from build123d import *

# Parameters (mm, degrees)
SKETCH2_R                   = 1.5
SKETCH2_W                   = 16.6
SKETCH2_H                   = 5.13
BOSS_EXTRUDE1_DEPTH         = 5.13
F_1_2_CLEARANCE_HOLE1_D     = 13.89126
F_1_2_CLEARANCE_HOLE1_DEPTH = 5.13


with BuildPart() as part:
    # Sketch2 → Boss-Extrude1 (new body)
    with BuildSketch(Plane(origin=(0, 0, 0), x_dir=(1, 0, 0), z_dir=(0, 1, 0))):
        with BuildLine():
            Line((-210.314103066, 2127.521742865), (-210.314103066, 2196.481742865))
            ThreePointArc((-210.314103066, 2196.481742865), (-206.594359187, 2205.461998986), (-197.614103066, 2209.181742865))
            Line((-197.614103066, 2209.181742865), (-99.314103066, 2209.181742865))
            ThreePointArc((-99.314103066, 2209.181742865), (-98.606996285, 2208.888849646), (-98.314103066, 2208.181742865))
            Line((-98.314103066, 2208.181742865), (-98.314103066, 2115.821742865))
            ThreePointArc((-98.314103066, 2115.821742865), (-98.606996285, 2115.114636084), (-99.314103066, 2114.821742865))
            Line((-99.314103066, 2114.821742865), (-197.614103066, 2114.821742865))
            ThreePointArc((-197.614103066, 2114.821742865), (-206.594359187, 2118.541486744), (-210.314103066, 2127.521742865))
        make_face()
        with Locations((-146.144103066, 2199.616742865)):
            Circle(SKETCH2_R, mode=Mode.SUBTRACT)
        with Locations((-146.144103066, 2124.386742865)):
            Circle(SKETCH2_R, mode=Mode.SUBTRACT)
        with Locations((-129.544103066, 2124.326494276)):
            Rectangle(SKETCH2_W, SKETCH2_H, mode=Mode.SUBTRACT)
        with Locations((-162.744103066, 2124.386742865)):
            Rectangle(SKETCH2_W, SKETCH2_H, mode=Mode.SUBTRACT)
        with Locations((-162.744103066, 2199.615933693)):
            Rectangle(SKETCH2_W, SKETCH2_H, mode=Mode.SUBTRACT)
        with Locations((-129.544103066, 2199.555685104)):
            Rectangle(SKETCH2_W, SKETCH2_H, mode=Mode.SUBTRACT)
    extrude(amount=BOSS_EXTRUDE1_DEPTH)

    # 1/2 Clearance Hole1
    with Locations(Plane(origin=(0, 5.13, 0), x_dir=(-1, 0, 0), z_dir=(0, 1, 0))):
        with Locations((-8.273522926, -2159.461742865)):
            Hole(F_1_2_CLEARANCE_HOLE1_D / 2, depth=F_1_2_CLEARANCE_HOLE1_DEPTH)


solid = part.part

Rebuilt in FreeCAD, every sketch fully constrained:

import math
import FreeCAD as App
import Part
import Sketcher
from FreeCAD import Vector
Q = App.Units.Quantity


def add_polygon(sketch, points):
    """Adds a closed chain of lines whose ends are joined by coincident constraints."""
    first, n = sketch.GeometryCount, len(points)
    for a, b in zip(points, points[1:] + points[:1]):
        sketch.addGeometry(Part.LineSegment(App.Vector(*a, 0), App.Vector(*b, 0)), False)
    for i in range(n):
        sketch.addConstraint(Sketcher.Constraint("Coincident", first + i, 2, first + (i + 1) % n, 1))

doc = App.newDocument("Part")
params = doc.addObject("Spreadsheet::Sheet", "Params")
for row, (alias, value) in enumerate([
    ("sketch1_diameter", "3 mm"),
    ("sketch1_radius", "1 mm"),
    ("sketch1_radius2", "12.7 mm"),
    ("sketch1_width", "98.3 mm"),
    ("sketch1_width2", "16.6 mm"),
    ("pad1_length", "5.13 mm"),
    ("hole_diameter", "13.89126 mm"),
    ("hole_depth", "5.13 mm"),
], start=1):
    params.set(f"A{row}", alias)
    params.set(f"B{row}", "=" + value)
    params.setAlias(f"B{row}", alias)

body = doc.addObject("PartDesign::Body", "Body")

# Sketch on XZ plane
sketch1 = doc.addObject("Sketcher::SketchObject", "Sketch")
body.addObject(sketch1)
sketch1.AttachmentSupport = (doc.XZ_Plane, [""])
sketch1.MapMode = "FlatFace"
sketch1.addGeometry(Part.LineSegment(Vector(-210.3, -2196.5, 0), Vector(-210.3, -2127.5, 0)), False)  # 0
sketch1.addGeometry(Part.ArcOfCircle(Part.Circle(Vector(-197.6, -2127.5, 0), Vector(0, 0, 1), 12.7), math.radians(90), math.radians(180)), False)  # 1
sketch1.addGeometry(Part.LineSegment(Vector(-197.6, -2114.8, 0), Vector(-99.3, -2114.8, 0)), False)  # 2
sketch1.addGeometry(Part.ArcOfCircle(Part.Circle(Vector(-99.3, -2115.8, 0), Vector(0, 0, 1), 1), math.radians(0), math.radians(90)), False)  # 3
sketch1.addGeometry(Part.LineSegment(Vector(-98.3, -2115.8, 0), Vector(-98.3, -2208.2, 0)), False)  # 4
sketch1.addGeometry(Part.ArcOfCircle(Part.Circle(Vector(-99.3, -2208.2, 0), Vector(0, 0, 1), 1), math.radians(-90), math.radians(0)), False)  # 5
sketch1.addGeometry(Part.LineSegment(Vector(-99.3, -2209.2, 0), Vector(-197.6, -2209.2, 0)), False)  # 6
sketch1.addGeometry(Part.ArcOfCircle(Part.Circle(Vector(-197.6, -2196.5, 0), Vector(0, 0, 1), 12.7), math.radians(180), math.radians(270)), False)  # 7
add_polygon(sketch1, [(-137.8, -2121.8), (-137.8, -2126.9), (-121.2, -2126.9), (-121.2, -2121.8)])  # lines 8-11
sketch1.addGeometry(Part.Circle(Vector(-146.1, -2124.4, 0), Vector(0, 0, 1), 1.5), False)  # 12
add_polygon(sketch1, [(-171, -2121.8), (-171, -2127), (-154.4, -2127), (-154.4, -2121.8)])  # lines 13-16
add_polygon(sketch1, [(-137.8, -2197), (-137.8, -2202.1), (-121.2, -2202.1), (-121.2, -2197)])  # lines 17-20
sketch1.addGeometry(Part.Circle(Vector(-146.1, -2199.6, 0), Vector(0, 0, 1), 1.5), False)  # 21
add_polygon(sketch1, [(-171, -2197.1), (-171, -2202.2), (-154.4, -2202.2), (-154.4, -2197.1)])  # lines 22-25
sketch1.addConstraint([
    Sketcher.Constraint("Tangent", 0, 2, 1, 2),
    Sketcher.Constraint("Tangent", 1, 1, 2, 1),
    Sketcher.Constraint("Tangent", 2, 2, 3, 2),
    Sketcher.Constraint("Tangent", 3, 1, 4, 1),
    Sketcher.Constraint("Tangent", 4, 2, 5, 2),
    Sketcher.Constraint("Tangent", 5, 1, 6, 1),
    Sketcher.Constraint("Tangent", 6, 2, 7, 2),
    Sketcher.Constraint("Tangent", 7, 1, 0, 1),
    Sketcher.Constraint("Vertical", 0),
    Sketcher.Constraint("Horizontal", 2),
    Sketcher.Constraint("Vertical", 4),
    Sketcher.Constraint("Horizontal", 6),
    Sketcher.Constraint("Vertical", 8),
    Sketcher.Constraint("Horizontal", 9),
    Sketcher.Constraint("Vertical", 10),
    Sketcher.Constraint("Horizontal", 11),
    Sketcher.Constraint("Vertical", 13),
    Sketcher.Constraint("Horizontal", 14),
    Sketcher.Constraint("Vertical", 15),
    Sketcher.Constraint("Horizontal", 16),
    Sketcher.Constraint("Vertical", 17),
    Sketcher.Constraint("Horizontal", 18),
    Sketcher.Constraint("Vertical", 19),
    Sketcher.Constraint("Horizontal", 20),
    Sketcher.Constraint("Vertical", 22),
    Sketcher.Constraint("Horizontal", 23),
    Sketcher.Constraint("Vertical", 24),
    Sketcher.Constraint("Horizontal", 25),
    Sketcher.Constraint("Equal", 3, 5),
    Sketcher.Constraint("Equal", 1, 7),
    Sketcher.Constraint("Equal", 12, 21),
    Sketcher.Constraint("Vertical", 12, 3, 21, 3),
    Sketcher.Constraint("Vertical", 11, 2, 17, 2),
    Sketcher.Constraint("Vertical", 10, 2, 18, 2),
    Sketcher.Constraint("Vertical", 16, 2, 22, 2),
    Sketcher.Constraint("Vertical", 15, 2, 23, 2),
    Sketcher.Constraint("Equal", 11, 14),
    Sketcher.Constraint("Equal", 10, 13),
    Sketcher.Constraint("Equal", 15, 17),
    Sketcher.Constraint("Equal", 19, 22),
    Sketcher.Constraint("Diameter", 12, Q("3 mm")),
    Sketcher.Constraint("Radius", 3, Q("1 mm")),
    Sketcher.Constraint("Radius", 1, Q("12.7 mm")),
    Sketcher.Constraint("DistanceX", 2, 1, 2, 2, Q("98.3 mm")),
    Sketcher.Constraint("DistanceX", 9, 1, 9, 2, Q("16.6 mm")),
    Sketcher.Constraint("DistanceY", 0, 1, 0, 2, Q("68.96 mm")),
    Sketcher.Constraint("DistanceY", 8, 2, 8, 1, Q("5.13 mm")),
    Sketcher.Constraint("DistanceX", 12, 3, 8, 2, Q("8.3 mm")),
    Sketcher.Constraint("DistanceX", 13, 2, 12, 3, Q("24.9 mm")),
    Sketcher.Constraint("DistanceY", 1, 3, 16, 2, Q("5.7 mm")),
    Sketcher.Constraint("DistanceX", 12, 3, 3, 3, Q("46.83 mm")),
    Sketcher.Constraint("DistanceY", 21, 3, 12, 3, Q("75.23 mm")),
    Sketcher.Constraint("DistanceY", 12, 3, 3, 3, Q("8.565 mm")),
    Sketcher.Constraint("DistanceY", 8, 2, 12, 3, Q("2.504751 mm")),
    Sketcher.Constraint("DistanceY", 22, 2, 21, 3, Q("2.564191 mm")),
    Sketcher.Constraint("DistanceY", 22, 2, 17, 2, Q("0.060249 mm")),
    Sketcher.Constraint("DistanceX", 1, 3, -1, 1, Q("197.614103 mm")),
    Sketcher.Constraint("DistanceY", 1, 3, -1, 1, Q("2127.521743 mm")),
])
sketch1.setExpression("Constraints[56]", "Params.sketch1_diameter")
sketch1.setExpression("Constraints[57]", "Params.sketch1_radius")
sketch1.setExpression("Constraints[58]", "Params.sketch1_radius2")
sketch1.setExpression("Constraints[59]", "Params.sketch1_width")
sketch1.setExpression("Constraints[60]", "Params.sketch1_width2")
pad1 = doc.addObject("PartDesign::Pad", "Pad")
body.addObject(pad1)
pad1.Profile = sketch1
pad1.setExpression("Length", "Params.pad1_length")
pad1.Reversed = True

# Sketch on XZ plane
sketch2 = doc.addObject("Sketcher::SketchObject", "Sketch001")
body.addObject(sketch2)
sketch2.AttachmentSupport = (doc.XZ_Plane, [""])
sketch2.MapMode = "FlatFace"
sketch2.AttachmentOffset = App.Placement(Vector(0, 0, -5.13), App.Rotation())
sketch2.addGeometry(Part.Circle(Vector(8, -2159, 0), Vector(0, 0, 1), 7), False)
sketch2.addConstraint([
    Sketcher.Constraint("Diameter", 0, Q("13.89126 mm")),
    Sketcher.Constraint("DistanceX", -1, 1, 0, 3, Q("8.273523 mm")),
    Sketcher.Constraint("DistanceY", 0, 3, -1, 1, Q("2159.461743 mm")),
])
doc.recompute()
hole = doc.addObject("PartDesign::Hole", "Hole")
body.addObject(hole)
hole.Profile = sketch2
hole.ThreadType = "None"
hole.setExpression("Diameter", "Params.hole_diameter")
hole.DepthType = "Dimension"
hole.setExpression("Depth", "Params.hole_depth")
hole.DrillPoint = "Flat"
hole.Reversed = True

doc.recompute()
